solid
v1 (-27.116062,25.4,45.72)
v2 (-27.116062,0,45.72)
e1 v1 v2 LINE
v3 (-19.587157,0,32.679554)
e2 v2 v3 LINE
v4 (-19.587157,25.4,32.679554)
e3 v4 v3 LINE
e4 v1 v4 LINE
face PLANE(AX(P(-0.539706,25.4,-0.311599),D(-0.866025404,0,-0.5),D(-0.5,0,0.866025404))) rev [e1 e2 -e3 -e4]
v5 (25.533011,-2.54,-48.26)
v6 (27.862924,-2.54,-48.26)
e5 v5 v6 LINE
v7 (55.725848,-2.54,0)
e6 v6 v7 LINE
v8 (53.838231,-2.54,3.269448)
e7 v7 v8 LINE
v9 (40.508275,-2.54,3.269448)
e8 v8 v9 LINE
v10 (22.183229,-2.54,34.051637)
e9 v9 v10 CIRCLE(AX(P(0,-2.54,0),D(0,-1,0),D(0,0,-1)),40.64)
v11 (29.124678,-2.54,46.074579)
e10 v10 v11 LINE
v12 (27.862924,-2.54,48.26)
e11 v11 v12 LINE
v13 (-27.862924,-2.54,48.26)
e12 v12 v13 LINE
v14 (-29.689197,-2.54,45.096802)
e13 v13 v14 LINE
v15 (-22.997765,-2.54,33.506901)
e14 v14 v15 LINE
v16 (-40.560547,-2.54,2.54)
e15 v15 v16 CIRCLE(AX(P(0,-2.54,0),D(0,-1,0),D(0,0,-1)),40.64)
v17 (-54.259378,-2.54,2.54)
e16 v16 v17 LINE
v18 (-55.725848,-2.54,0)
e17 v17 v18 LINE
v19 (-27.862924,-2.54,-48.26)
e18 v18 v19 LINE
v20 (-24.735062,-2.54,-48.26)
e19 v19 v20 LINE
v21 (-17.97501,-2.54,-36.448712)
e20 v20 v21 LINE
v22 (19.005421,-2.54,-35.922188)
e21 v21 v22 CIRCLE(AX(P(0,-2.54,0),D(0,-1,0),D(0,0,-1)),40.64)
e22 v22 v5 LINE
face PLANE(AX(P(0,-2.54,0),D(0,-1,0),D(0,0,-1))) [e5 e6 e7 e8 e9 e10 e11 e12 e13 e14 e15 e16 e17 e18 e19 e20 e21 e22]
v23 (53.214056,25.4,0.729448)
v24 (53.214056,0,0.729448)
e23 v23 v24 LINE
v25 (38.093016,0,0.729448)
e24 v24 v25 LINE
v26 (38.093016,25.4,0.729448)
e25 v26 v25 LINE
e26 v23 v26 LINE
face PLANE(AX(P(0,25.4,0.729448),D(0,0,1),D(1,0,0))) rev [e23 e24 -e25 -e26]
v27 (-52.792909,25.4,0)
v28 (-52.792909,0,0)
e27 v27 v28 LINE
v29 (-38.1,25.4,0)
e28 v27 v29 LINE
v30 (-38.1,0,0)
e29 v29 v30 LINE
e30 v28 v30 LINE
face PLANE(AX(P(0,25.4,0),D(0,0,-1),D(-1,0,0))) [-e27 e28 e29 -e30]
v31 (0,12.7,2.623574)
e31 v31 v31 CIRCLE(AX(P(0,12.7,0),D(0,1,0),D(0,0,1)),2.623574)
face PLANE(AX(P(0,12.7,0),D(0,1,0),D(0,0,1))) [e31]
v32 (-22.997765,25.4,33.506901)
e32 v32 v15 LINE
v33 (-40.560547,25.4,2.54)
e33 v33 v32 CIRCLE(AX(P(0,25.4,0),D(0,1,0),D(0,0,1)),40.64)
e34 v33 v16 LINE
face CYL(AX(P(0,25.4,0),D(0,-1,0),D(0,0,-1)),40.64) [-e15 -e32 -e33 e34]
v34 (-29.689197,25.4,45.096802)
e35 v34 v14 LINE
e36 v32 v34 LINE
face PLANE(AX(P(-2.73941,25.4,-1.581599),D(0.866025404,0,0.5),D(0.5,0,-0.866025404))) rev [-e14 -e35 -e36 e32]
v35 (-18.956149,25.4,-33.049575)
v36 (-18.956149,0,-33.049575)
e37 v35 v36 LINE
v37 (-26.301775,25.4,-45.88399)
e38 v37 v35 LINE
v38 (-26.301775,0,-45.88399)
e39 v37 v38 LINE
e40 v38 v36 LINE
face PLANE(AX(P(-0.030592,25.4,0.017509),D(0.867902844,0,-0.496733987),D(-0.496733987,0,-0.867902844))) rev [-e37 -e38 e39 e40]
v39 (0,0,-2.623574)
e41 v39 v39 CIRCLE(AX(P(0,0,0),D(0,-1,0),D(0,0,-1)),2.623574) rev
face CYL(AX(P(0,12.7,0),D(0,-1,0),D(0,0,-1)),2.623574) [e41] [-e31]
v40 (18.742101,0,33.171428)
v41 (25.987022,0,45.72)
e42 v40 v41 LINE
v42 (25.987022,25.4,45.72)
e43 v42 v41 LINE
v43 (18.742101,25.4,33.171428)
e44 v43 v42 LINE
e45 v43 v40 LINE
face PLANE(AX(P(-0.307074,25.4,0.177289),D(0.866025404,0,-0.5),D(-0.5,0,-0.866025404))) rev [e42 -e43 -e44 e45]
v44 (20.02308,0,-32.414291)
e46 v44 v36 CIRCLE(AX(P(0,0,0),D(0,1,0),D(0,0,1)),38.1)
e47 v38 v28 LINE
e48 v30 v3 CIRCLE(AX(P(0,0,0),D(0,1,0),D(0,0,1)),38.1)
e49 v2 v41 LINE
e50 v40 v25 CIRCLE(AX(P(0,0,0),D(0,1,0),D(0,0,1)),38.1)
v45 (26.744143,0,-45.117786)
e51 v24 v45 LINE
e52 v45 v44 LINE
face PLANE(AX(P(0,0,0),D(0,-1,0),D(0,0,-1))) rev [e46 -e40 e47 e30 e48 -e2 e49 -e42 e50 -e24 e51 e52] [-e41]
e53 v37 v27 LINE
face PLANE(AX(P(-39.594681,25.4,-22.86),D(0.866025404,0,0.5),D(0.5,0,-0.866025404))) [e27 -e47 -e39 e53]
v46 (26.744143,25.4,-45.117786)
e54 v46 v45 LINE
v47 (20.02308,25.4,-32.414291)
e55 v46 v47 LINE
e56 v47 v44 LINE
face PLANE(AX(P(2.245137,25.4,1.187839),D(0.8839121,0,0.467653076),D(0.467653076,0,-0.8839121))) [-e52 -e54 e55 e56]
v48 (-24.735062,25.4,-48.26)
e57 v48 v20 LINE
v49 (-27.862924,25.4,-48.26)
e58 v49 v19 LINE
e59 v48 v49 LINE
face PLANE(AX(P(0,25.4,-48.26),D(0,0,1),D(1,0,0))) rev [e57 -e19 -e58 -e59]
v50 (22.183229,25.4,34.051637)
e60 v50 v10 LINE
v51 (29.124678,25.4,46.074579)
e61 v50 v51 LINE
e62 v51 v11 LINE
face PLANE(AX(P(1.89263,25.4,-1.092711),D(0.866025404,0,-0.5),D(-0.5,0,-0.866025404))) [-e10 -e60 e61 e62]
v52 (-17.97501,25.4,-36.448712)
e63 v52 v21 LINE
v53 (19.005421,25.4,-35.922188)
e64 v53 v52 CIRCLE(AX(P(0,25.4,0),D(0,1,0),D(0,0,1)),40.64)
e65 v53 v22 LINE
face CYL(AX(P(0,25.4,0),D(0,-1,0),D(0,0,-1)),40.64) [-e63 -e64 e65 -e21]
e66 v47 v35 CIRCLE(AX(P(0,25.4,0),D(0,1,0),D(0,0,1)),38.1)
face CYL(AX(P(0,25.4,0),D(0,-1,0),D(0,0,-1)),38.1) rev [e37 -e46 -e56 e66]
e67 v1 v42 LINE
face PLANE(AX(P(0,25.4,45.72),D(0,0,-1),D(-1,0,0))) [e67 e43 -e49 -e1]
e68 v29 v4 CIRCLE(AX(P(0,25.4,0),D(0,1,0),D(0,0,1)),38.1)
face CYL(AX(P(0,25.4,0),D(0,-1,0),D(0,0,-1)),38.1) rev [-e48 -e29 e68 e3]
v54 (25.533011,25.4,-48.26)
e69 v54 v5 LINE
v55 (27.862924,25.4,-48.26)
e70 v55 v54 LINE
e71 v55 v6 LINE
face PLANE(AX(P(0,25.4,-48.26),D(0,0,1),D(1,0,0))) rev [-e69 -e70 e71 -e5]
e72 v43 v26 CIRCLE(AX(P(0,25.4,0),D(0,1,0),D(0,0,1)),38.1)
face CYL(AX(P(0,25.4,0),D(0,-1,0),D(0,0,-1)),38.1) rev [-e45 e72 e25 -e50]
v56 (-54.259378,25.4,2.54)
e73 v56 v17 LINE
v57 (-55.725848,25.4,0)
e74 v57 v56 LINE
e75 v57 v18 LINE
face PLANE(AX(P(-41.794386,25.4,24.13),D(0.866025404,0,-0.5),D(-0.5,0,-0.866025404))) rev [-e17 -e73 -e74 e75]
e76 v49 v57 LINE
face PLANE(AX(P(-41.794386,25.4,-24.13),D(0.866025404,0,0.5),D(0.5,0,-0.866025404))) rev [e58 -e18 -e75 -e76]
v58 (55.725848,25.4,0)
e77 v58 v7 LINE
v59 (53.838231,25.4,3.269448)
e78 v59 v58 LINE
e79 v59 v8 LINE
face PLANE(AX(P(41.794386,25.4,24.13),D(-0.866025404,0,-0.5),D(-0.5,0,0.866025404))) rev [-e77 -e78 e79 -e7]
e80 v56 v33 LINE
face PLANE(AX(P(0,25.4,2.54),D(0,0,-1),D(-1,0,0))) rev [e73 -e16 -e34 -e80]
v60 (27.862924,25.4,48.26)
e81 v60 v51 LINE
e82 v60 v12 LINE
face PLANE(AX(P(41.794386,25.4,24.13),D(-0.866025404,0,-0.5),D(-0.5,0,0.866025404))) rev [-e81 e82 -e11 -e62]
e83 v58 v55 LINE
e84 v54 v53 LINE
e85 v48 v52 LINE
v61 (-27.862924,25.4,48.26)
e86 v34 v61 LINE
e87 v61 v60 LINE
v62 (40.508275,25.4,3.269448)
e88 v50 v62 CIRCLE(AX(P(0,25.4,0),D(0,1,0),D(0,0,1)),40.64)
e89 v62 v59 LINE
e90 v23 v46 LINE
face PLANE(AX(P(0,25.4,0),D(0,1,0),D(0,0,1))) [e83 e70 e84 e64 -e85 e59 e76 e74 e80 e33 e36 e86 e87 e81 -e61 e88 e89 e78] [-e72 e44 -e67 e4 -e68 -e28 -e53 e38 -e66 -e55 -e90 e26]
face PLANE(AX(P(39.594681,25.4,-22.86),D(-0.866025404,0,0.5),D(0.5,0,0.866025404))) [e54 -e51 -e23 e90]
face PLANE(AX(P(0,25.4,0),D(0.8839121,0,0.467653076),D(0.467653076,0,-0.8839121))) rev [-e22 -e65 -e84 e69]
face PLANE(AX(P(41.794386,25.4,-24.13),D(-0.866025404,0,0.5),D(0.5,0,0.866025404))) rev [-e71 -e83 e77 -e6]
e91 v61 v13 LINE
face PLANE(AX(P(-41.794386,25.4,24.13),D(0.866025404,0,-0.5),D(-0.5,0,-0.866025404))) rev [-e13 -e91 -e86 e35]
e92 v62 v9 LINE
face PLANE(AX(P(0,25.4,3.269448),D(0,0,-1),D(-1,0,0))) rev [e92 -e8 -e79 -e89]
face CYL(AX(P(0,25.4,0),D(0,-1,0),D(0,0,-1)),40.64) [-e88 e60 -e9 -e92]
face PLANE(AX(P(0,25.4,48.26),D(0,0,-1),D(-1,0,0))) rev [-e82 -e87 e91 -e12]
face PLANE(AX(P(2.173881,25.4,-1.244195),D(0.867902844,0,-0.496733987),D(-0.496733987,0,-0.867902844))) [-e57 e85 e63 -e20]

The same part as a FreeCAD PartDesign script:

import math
import FreeCAD as App
import Part
import Sketcher

V = App.Vector
Q = App.Units.Quantity

doc = App.newDocument("Part")
params = doc.addObject("Spreadsheet::Sheet", "Params")
for row, (alias, value) in enumerate([
    ("sketch1_radius", "1.6 in"),
    ("sketch1_radius2", "1.5 in"),
    ("pad1_length", "1 in"),
    ("sketch2_radius", "1.6 in"),
    ("pad2_length", "0.1 in"),
    ("pad3_length", "0.5 in"),
], start=1):
    params.set(f"A{row}", alias)
    params.set(f"B{row}", "=" + value)
    params.setAlias(f"B{row}", alias)

body = doc.addObject("PartDesign::Body", "Body")

# Sketch on XZ plane
sketch1 = body.newObject("Sketcher::SketchObject", "Sketch")
sketch1.AttachmentSupport = (doc.getObject("XZ_Plane"), [""])
sketch1.MapMode = "FlatFace"
sketch1.addGeometry([
    Part.LineSegment(V(27.9, -48.3, 0), V(25.5, -48.3, 0)),  # 0
    Part.LineSegment(V(25.5, -48.3, 0), V(19, -35.9, 0)),  # 1
    Part.ArcOfCircle(Part.Circle(V(0, 0, 0), V(0, 0, 1), 40.6), math.radians(-116), math.radians(-62)),  # 2
    Part.LineSegment(V(-18, -36.4, 0), V(-24.7, -48.3, 0)),  # 3
    Part.LineSegment(V(-24.7, -48.3, 0), V(-27.9, -48.3, 0)),  # 4
    Part.LineSegment(V(-27.9, -48.3, 0), V(-55.7, 0, 0)),  # 5
    Part.LineSegment(V(-55.7, 0, 0), V(-54.3, 2.5, 0)),  # 6
    Part.LineSegment(V(-54.3, 2.5, 0), V(-40.6, 2.5, 0)),  # 7
    Part.ArcOfCircle(Part.Circle(V(0, 0, 0), V(0, 0, 1), 40.6), math.radians(124), math.radians(176)),  # 8
    Part.LineSegment(V(-23, 33.5, 0), V(-28.2, 42.6, 0)),  # 9
    Part.LineSegment(V(-28.2, 42.6, 0), V(-29.7, 45.1, 0)),  # 10
    Part.LineSegment(V(-29.7, 45.1, 0), V(-27.9, 48.3, 0)),  # 11
    Part.LineSegment(V(-27.9, 48.3, 0), V(27.9, 48.3, 0)),  # 12
    Part.LineSegment(V(27.9, 48.3, 0), V(29.1, 46.1, 0)),  # 13
    Part.LineSegment(V(29.1, 46.1, 0), V(22.2, 34.1, 0)),  # 14
    Part.ArcOfCircle(Part.Circle(V(0, 0, 0), V(0, 0, 1), 40.6), math.radians(5), math.radians(57)),  # 15
    Part.LineSegment(V(40.5, 3.3, 0), V(53.8, 3.3, 0)),  # 16
    Part.LineSegment(V(53.8, 3.3, 0), V(55.7, 0, 0)),  # 17
    Part.LineSegment(V(55.7, 0, 0), V(27.9, -48.3, 0)),  # 18
    Part.LineSegment(V(-52.8, 0, 0), V(-26.3, -45.9, 0)),  # 19
    Part.LineSegment(V(-26.3, -45.9, 0), V(-19, -33, 0)),  # 20
    Part.ArcOfCircle(Part.Circle(V(0, 0, 0), V(0, 0, 1), 38.1), math.radians(-120), math.radians(-58)),  # 21
    Part.LineSegment(V(20, -32.4, 0), V(26.7, -45.1, 0)),  # 22
    Part.LineSegment(V(26.7, -45.1, 0), V(53.2, 0.7, 0)),  # 23
    Part.LineSegment(V(53.2, 0.7, 0), V(38.1, 0.7, 0)),  # 24
    Part.ArcOfCircle(Part.Circle(V(0, 0, 0), V(0, 0, 1), 38.1), math.radians(1), math.radians(61)),  # 25
    Part.LineSegment(V(18.7, 33.2, 0), V(26, 45.7, 0)),  # 26
    Part.LineSegment(V(26, 45.7, 0), V(-27.1, 45.7, 0)),  # 27
    Part.LineSegment(V(-27.1, 45.7, 0), V(-19.6, 32.7, 0)),  # 28
    Part.ArcOfCircle(Part.Circle(V(0, 0, 0), V(0, 0, 1), 38.1), math.radians(121), math.radians(180)),  # 29
    Part.LineSegment(V(-38.1, 0, 0), V(-52.8, 0, 0)),  # 30
], False)
sketch1.addConstraint([
    Sketcher.Constraint("Coincident", 0, 2, 1, 1),
    Sketcher.Constraint("Coincident", 1, 2, 2, 2),
    Sketcher.Constraint("Coincident", 2, 1, 3, 1),
    Sketcher.Constraint("Coincident", 3, 2, 4, 1),
    Sketcher.Constraint("Coincident", 4, 2, 5, 1),
    Sketcher.Constraint("Coincident", 5, 2, 6, 1),
    Sketcher.Constraint("Coincident", 6, 2, 7, 1),
    Sketcher.Constraint("Coincident", 7, 2, 8, 2),
    Sketcher.Constraint("Coincident", 8, 1, 9, 1),
    Sketcher.Constraint("Coincident", 9, 2, 10, 1),
    Sketcher.Constraint("Coincident", 10, 2, 11, 1),
    Sketcher.Constraint("Coincident", 11, 2, 12, 1),
    Sketcher.Constraint("Coincident", 12, 2, 13, 1),
    Sketcher.Constraint("Coincident", 13, 2, 14, 1),
    Sketcher.Constraint("Coincident", 14, 2, 15, 2),
    Sketcher.Constraint("Coincident", 15, 1, 16, 1),
    Sketcher.Constraint("Coincident", 16, 2, 17, 1),
    Sketcher.Constraint("Coincident", 17, 2, 18, 1),
    Sketcher.Constraint("Coincident", 18, 2, 0, 1),
    Sketcher.Constraint("Coincident", 19, 2, 20, 1),
    Sketcher.Constraint("Coincident", 20, 2, 21, 1),
    Sketcher.Constraint("Coincident", 21, 2, 22, 1),
    Sketcher.Constraint("Coincident", 22, 2, 23, 1),
    Sketcher.Constraint("Coincident", 23, 2, 24, 1),
    Sketcher.Constraint("Coincident", 24, 2, 25, 1),
    Sketcher.Constraint("Coincident", 25, 2, 26, 1),
    Sketcher.Constraint("Coincident", 26, 2, 27, 1),
    Sketcher.Constraint("Coincident", 27, 2, 28, 1),
    Sketcher.Constraint("Coincident", 28, 2, 29, 1),
    Sketcher.Constraint("Coincident", 29, 2, 30, 1),
    Sketcher.Constraint("Coincident", 30, 2, 19, 1),
    Sketcher.Constraint("Horizontal", 0),
    Sketcher.Constraint("Horizontal", 4),
    Sketcher.Constraint("Horizontal", 7),
    Sketcher.Constraint("Horizontal", 12),
    Sketcher.Constraint("Horizontal", 16),
    Sketcher.Constraint("Horizontal", 24),
    Sketcher.Constraint("Horizontal", 27),
    Sketcher.Constraint("Horizontal", 30),
    Sketcher.Constraint("Coincident", 2, 3, -1, 1),
    Sketcher.Constraint("Coincident", 8, 3, -1, 1),
    Sketcher.Constraint("Coincident", 15, 3, -1, 1),
    Sketcher.Constraint("Coincident", 21, 3, -1, 1),
    Sketcher.Constraint("Coincident", 25, 3, -1, 1),
    Sketcher.Constraint("Coincident", 29, 3, -1, 1),
    Sketcher.Constraint("Equal", 2, 8),
    Sketcher.Constraint("Equal", 8, 15),
    Sketcher.Constraint("Equal", 21, 25),
    Sketcher.Constraint("Equal", 25, 29),
    Sketcher.Constraint("Symmetric", 4, 2, 12, 2, -1, 1),
    Sketcher.Constraint("Symmetric", 5, 2, 17, 2, -1, 1),
    Sketcher.Constraint("Symmetric", 11, 2, 18, 2, -1, 1),
    Sketcher.Constraint("PointOnObject", 5, 2, -1),
    Sketcher.Constraint("PointOnObject", 29, 2, -1),
    Sketcher.Constraint("Parallel", 5, 9),
    Sketcher.Constraint("Parallel", 9, 10),
    Sketcher.Constraint("Parallel", 6, 11),
    Sketcher.Constraint("Parallel", 10, 13),
    Sketcher.Constraint("Parallel", 11, 14),
    Sketcher.Constraint("Parallel", 13, 17),
    Sketcher.Constraint("Parallel", 14, 18),
    Sketcher.Constraint("Parallel", 17, 19),
    Sketcher.Constraint("Parallel", 3, 20),
    Sketcher.Constraint("Parallel", 1, 22),
    Sketcher.Constraint("Parallel", 18, 23),
    Sketcher.Constraint("Parallel", 23, 26),
    Sketcher.Constraint("Parallel", 19, 28),
    Sketcher.Constraint("Vertical", 4, 2, 11, 2),
    Sketcher.Constraint("Equal", 6, 10),
    Sketcher.Constraint("Radius", 2, Q("1.6 in")),
    Sketcher.Constraint("Radius", 21, Q("1.5 in")),
    Sketcher.Constraint("Angle", 5, Q("120 deg")),
    Sketcher.Constraint("DistanceY", 0, 2, -1, 1, Q("1.9 in")),
    Sketcher.Constraint("DistanceY", -1, 1, 6, 2, Q("0.1 in")),
    Sketcher.Constraint("DistanceY", -1, 1, 26, 2, Q("1.8 in")),
    Sketcher.Constraint("DistanceY", 23, 2, 16, 2, Q("0.1 in")),
    Sketcher.Constraint("DistanceX", 5, 2, 9, 2, Q("1.0828 in")),
    Sketcher.Constraint("Distance", 22, Q("14.371898 mm")),
    Sketcher.Constraint("DistanceX", 7, 1, 7, 2, Q("13.698831 mm")),
    Sketcher.Constraint("DistanceX", 24, 2, 24, 1, Q("15.121039 mm")),
    Sketcher.Constraint("DistanceX", 30, 2, 30, 1, Q("14.692909 mm")),
    Sketcher.Constraint("DistanceX", -1, 1, 25, 2, Q("18.742101 mm")),
    Sketcher.Constraint("DistanceY", 19, 2, 1, 2, Q("9.961802 mm")),
    Sketcher.Constraint("DistanceY", 22, 2, 1, 2, Q("9.195598 mm")),
    Sketcher.Constraint("Distance", 1, Q("13.958189 mm")),
    Sketcher.Constraint("Distance", 28, Q("15.05781 mm")),
    Sketcher.Constraint("DistanceX", 4, 2, 4, 1, Q("3.127862 mm")),
    Sketcher.Constraint("DistanceX", 16, 1, 16, 2, Q("13.329957 mm")),
    Sketcher.Constraint("DistanceX", 2, 1, -1, 1, Q("17.97501 mm")),
    Sketcher.Constraint("DistanceY", -1, 1, 13, 2, Q("46.074579 mm")),
])
sketch1.setExpression("Constraints[69]", "Params.sketch1_radius")
sketch1.setExpression("Constraints[70]", "Params.sketch1_radius2")
pad1 = body.newObject("PartDesign::Pad", "Pad")
pad1.Profile = sketch1
pad1.setExpression("Length", "Params.pad1_length")
pad1.Reversed = True

# Sketch on XZ plane
sketch2 = body.newObject("Sketcher::SketchObject", "Sketch001")
sketch2.AttachmentSupport = (doc.getObject("XZ_Plane"), [""])
sketch2.MapMode = "FlatFace"
sketch2.AttachmentOffset = App.Placement(V(0, 0, 0.1 * 25.4), App.Rotation())
sketch2.addGeometry([
    Part.LineSegment(V(22.2, 34.1, 0), V(29.1, 46.1, 0)),  # 0
    Part.LineSegment(V(29.1, 46.1, 0), V(27.9, 48.3, 0)),  # 1
    Part.LineSegment(V(27.9, 48.3, 0), V(-27.9, 48.3, 0)),  # 2
    Part.LineSegment(V(-27.9, 48.3, 0), V(-29.7, 45.1, 0)),  # 3
    Part.LineSegment(V(-29.7, 45.1, 0), V(-23, 33.5, 0)),  # 4
    Part.ArcOfCircle(Part.Circle(V(0, 0, 0), V(0, 0, 1), 40.6), math.radians(124), math.radians(176)),  # 5
    Part.LineSegment(V(-40.6, 2.5, 0), V(-54.3, 2.5, 0)),  # 6
    Part.LineSegment(V(-54.3, 2.5, 0), V(-55.7, 0, 0)),  # 7
    Part.LineSegment(V(-55.7, 0, 0), V(-27.9, -48.3, 0)),  # 8
    Part.LineSegment(V(-27.9, -48.3, 0), V(-24.7, -48.3, 0)),  # 9
    Part.LineSegment(V(-24.7, -48.3, 0), V(-18, -36.4, 0)),  # 10
    Part.ArcOfCircle(Part.Circle(V(0, 0, 0), V(0, 0, 1), 40.6), math.radians(-116), math.radians(-62)),  # 11
    Part.LineSegment(V(19, -35.9, 0), V(25.5, -48.3, 0)),  # 12
    Part.LineSegment(V(25.5, -48.3, 0), V(27.9, -48.3, 0)),  # 13
    Part.LineSegment(V(27.9, -48.3, 0), V(55.7, 0, 0)),  # 14
    Part.LineSegment(V(55.7, 0, 0), V(53.8, 3.3, 0)),  # 15
    Part.LineSegment(V(53.8, 3.3, 0), V(40.5, 3.3, 0)),  # 16
    Part.ArcOfCircle(Part.Circle(V(0, 0, 0), V(0, 0, 1), 40.6), math.radians(5), math.radians(57)),  # 17
], False)
sketch2.addConstraint([
    Sketcher.Constraint("Coincident", 0, 2, 1, 1),
    Sketcher.Constraint("Coincident", 1, 2, 2, 1),
    Sketcher.Constraint("Coincident", 2, 2, 3, 1),
    Sketcher.Constraint("Coincident", 3, 2, 4, 1),
    Sketcher.Constraint("Coincident", 4, 2, 5, 1),
    Sketcher.Constraint("Coincident", 5, 2, 6, 1),
    Sketcher.Constraint("Coincident", 6, 2, 7, 1),
    Sketcher.Constraint("Coincident", 7, 2, 8, 1),
    Sketcher.Constraint("Coincident", 8, 2, 9, 1),
    Sketcher.Constraint("Coincident", 9, 2, 10, 1),
    Sketcher.Constraint("Coincident", 10, 2, 11, 1),
    Sketcher.Constraint("Coincident", 11, 2, 12, 1),
    Sketcher.Constraint("Coincident", 12, 2, 13, 1),
    Sketcher.Constraint("Coincident", 13, 2, 14, 1),
    Sketcher.Constraint("Coincident", 14, 2, 15, 1),
    Sketcher.Constraint("Coincident", 15, 2, 16, 1),
    Sketcher.Constraint("Coincident", 16, 2, 17, 1),
    Sketcher.Constraint("Coincident", 17, 2, 0, 1),
    Sketcher.Constraint("Horizontal", 2),
    Sketcher.Constraint("Horizontal", 6),
    Sketcher.Constraint("Horizontal", 9),
    Sketcher.Constraint("Horizontal", 13),
    Sketcher.Constraint("Horizontal", 16),
    Sketcher.Constraint("Coincident", 5, 3, -1, 1),
    Sketcher.Constraint("Coincident", 11, 3, -1, 1),
    Sketcher.Constraint("Coincident", 17, 3, -1, 1),
    Sketcher.Constraint("Equal", 5, 11),
    Sketcher.Constraint("Equal", 11, 17),
    Sketcher.Constraint("Symmetric", 1, 2, 8, 2, -1, 1),
    Sketcher.Constraint("Symmetric", 2, 2, 13, 2, -1, 1),
    Sketcher.Constraint("Symmetric", 7, 2, 14, 2, -1, 1),
    Sketcher.Constraint("PointOnObject", 7, 2, -1),
    Sketcher.Constraint("Parallel", 0, 3),
    Sketcher.Constraint("Parallel", 1, 4),
    Sketcher.Constraint("Parallel", 3, 7),
    Sketcher.Constraint("Parallel", 4, 8),
    Sketcher.Constraint("Parallel", 7, 14),
    Sketcher.Constraint("Parallel", 8, 15),
    Sketcher.Constraint("Vertical", 2, 2, 8, 2),
    Sketcher.Constraint("Radius", 5, Q("1.6 in")),
    Sketcher.Constraint("Angle", 0, Q("60 deg")),
    Sketcher.Constraint("DistanceY", 8, 2, 5, 2, Q("2 in")),
    Sketcher.Constraint("DistanceY", -1, 1, 1, 2, Q("1.9 in")),
    Sketcher.Constraint("DistanceX", 6, 2, 6, 1, Q("13.698831 mm")),
    Sketcher.Constraint("DistanceY", -1, 1, 3, 2, Q("45.096802 mm")),
    Sketcher.Constraint("DistanceX", 2, 2, 0, 2, Q("56.987602 mm")),
    Sketcher.Constraint("Distance", 12, Q("13.958189 mm")),
    Sketcher.Constraint("DistanceX", 9, 1, 9, 2, Q("3.127862 mm")),
    Sketcher.Constraint("DistanceX", 16, 2, 16, 1, Q("13.329957 mm")),
    Sketcher.Constraint("DistanceX", 10, 2, -1, 1, Q("17.97501 mm")),
    Sketcher.Constraint("DistanceX", -1, 1, 11, 2, Q("19.005421 mm")),
])
sketch2.setExpression("Constraints[39]", "Params.sketch2_radius")
pad2 = body.newObject("PartDesign::Pad", "Pad001")
pad2.Profile = sketch2
pad2.setExpression("Length", "Params.pad2_length")
pad2.Reversed = True

# Sketch on XZ plane
sketch3 = body.newObject("Sketcher::SketchObject", "Sketch002")
sketch3.AttachmentSupport = (doc.getObject("XZ_Plane"), [""])
sketch3.MapMode = "FlatFace"
sketch3.addGeometry(Part.Circle(V(0, 0, 0), V(0, 0, 1), 2.6), False)
sketch3.addConstraint([
    Sketcher.Constraint("Coincident", 0, 3, -1, 1),
    Sketcher.Constraint("Diameter", 0, Q("5.247148 mm")),
])
pad3 = body.newObject("PartDesign::Pad", "Pad002")
pad3.Profile = sketch3
pad3.setExpression("Length", "Params.pad3_length")
pad3.Reversed = True

doc.recompute()
